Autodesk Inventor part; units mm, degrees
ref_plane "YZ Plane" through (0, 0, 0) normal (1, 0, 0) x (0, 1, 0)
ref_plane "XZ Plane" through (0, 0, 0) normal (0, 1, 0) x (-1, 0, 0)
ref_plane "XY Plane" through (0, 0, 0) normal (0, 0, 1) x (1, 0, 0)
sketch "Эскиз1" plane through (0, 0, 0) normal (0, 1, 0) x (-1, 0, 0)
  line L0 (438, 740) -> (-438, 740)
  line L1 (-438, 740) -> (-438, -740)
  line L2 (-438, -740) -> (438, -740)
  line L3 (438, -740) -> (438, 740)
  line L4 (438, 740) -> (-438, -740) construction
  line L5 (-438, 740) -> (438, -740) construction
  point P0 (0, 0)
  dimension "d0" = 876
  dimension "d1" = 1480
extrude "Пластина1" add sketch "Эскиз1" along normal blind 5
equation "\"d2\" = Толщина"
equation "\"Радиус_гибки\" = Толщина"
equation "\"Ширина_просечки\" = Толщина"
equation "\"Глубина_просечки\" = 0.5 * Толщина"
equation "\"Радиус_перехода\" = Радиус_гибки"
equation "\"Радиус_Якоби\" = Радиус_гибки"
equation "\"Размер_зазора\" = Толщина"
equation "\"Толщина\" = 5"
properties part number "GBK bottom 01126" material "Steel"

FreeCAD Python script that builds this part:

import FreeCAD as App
import Part
import Sketcher
from FreeCAD import Vector
Q = App.Units.Quantity

doc = App.newDocument("Part")
params = doc.addObject("Spreadsheet::Sheet", "Params")
for row, (alias, value) in enumerate([
    ("sketch1_width", "876 mm"),
    ("sketch1_height", "1480 mm"),
    ("pad1_length", "5 mm"),
], start=1):
    params.set(f"A{row}", alias)
    params.set(f"B{row}", "=" + value)
    params.setAlias(f"B{row}", alias)

body = doc.addObject("PartDesign::Body", "Body")

sketch1 = doc.addObject("Sketcher::SketchObject", "Sketch")
body.addObject(sketch1)
sketch1.AttachmentSupport = (doc.XZ_Plane, [""])
sketch1.MapMode = "FlatFace"
sketch1.addGeometry([
    Part.LineSegment(Vector(-438, -740, 0), Vector(-438, 740, 0)),
    Part.LineSegment(Vector(-438, 740, 0), Vector(438, 740, 0)),
    Part.LineSegment(Vector(438, 740, 0), Vector(438, -740, 0)),
    Part.LineSegment(Vector(438, -740, 0), Vector(-438, -740, 0)),
], False)
sketch1.addConstraint([
    Sketcher.Constraint("Coincident", 0, 2, 1, 1),
    Sketcher.Constraint("Coincident", 1, 2, 2, 1),
    Sketcher.Constraint("Coincident", 2, 2, 3, 1),
    Sketcher.Constraint("Coincident", 3, 2, 0, 1),
    Sketcher.Constraint("Vertical", 0),
    Sketcher.Constraint("Horizontal", 1),
    Sketcher.Constraint("Vertical", 2),
    Sketcher.Constraint("Horizontal", 3),
    Sketcher.Constraint("Symmetric", 0, 2, 2, 2, -1, 1),
    Sketcher.Constraint("DistanceX", 1, 1, 1, 2, Q("876 mm")),
    Sketcher.Constraint("DistanceY", 0, 1, 0, 2, Q("1480 mm")),
])
sketch1.setExpression("Constraints[9]", "Params.sketch1_width")
sketch1.setExpression("Constraints[10]", "Params.sketch1_height")
pad1 = doc.addObject("PartDesign::Pad", "Pad")
body.addObject(pad1)
pad1.Profile = sketch1
pad1.setExpression("Length", "Params.pad1_length")
pad1.Reversed = True

doc.recompute()
